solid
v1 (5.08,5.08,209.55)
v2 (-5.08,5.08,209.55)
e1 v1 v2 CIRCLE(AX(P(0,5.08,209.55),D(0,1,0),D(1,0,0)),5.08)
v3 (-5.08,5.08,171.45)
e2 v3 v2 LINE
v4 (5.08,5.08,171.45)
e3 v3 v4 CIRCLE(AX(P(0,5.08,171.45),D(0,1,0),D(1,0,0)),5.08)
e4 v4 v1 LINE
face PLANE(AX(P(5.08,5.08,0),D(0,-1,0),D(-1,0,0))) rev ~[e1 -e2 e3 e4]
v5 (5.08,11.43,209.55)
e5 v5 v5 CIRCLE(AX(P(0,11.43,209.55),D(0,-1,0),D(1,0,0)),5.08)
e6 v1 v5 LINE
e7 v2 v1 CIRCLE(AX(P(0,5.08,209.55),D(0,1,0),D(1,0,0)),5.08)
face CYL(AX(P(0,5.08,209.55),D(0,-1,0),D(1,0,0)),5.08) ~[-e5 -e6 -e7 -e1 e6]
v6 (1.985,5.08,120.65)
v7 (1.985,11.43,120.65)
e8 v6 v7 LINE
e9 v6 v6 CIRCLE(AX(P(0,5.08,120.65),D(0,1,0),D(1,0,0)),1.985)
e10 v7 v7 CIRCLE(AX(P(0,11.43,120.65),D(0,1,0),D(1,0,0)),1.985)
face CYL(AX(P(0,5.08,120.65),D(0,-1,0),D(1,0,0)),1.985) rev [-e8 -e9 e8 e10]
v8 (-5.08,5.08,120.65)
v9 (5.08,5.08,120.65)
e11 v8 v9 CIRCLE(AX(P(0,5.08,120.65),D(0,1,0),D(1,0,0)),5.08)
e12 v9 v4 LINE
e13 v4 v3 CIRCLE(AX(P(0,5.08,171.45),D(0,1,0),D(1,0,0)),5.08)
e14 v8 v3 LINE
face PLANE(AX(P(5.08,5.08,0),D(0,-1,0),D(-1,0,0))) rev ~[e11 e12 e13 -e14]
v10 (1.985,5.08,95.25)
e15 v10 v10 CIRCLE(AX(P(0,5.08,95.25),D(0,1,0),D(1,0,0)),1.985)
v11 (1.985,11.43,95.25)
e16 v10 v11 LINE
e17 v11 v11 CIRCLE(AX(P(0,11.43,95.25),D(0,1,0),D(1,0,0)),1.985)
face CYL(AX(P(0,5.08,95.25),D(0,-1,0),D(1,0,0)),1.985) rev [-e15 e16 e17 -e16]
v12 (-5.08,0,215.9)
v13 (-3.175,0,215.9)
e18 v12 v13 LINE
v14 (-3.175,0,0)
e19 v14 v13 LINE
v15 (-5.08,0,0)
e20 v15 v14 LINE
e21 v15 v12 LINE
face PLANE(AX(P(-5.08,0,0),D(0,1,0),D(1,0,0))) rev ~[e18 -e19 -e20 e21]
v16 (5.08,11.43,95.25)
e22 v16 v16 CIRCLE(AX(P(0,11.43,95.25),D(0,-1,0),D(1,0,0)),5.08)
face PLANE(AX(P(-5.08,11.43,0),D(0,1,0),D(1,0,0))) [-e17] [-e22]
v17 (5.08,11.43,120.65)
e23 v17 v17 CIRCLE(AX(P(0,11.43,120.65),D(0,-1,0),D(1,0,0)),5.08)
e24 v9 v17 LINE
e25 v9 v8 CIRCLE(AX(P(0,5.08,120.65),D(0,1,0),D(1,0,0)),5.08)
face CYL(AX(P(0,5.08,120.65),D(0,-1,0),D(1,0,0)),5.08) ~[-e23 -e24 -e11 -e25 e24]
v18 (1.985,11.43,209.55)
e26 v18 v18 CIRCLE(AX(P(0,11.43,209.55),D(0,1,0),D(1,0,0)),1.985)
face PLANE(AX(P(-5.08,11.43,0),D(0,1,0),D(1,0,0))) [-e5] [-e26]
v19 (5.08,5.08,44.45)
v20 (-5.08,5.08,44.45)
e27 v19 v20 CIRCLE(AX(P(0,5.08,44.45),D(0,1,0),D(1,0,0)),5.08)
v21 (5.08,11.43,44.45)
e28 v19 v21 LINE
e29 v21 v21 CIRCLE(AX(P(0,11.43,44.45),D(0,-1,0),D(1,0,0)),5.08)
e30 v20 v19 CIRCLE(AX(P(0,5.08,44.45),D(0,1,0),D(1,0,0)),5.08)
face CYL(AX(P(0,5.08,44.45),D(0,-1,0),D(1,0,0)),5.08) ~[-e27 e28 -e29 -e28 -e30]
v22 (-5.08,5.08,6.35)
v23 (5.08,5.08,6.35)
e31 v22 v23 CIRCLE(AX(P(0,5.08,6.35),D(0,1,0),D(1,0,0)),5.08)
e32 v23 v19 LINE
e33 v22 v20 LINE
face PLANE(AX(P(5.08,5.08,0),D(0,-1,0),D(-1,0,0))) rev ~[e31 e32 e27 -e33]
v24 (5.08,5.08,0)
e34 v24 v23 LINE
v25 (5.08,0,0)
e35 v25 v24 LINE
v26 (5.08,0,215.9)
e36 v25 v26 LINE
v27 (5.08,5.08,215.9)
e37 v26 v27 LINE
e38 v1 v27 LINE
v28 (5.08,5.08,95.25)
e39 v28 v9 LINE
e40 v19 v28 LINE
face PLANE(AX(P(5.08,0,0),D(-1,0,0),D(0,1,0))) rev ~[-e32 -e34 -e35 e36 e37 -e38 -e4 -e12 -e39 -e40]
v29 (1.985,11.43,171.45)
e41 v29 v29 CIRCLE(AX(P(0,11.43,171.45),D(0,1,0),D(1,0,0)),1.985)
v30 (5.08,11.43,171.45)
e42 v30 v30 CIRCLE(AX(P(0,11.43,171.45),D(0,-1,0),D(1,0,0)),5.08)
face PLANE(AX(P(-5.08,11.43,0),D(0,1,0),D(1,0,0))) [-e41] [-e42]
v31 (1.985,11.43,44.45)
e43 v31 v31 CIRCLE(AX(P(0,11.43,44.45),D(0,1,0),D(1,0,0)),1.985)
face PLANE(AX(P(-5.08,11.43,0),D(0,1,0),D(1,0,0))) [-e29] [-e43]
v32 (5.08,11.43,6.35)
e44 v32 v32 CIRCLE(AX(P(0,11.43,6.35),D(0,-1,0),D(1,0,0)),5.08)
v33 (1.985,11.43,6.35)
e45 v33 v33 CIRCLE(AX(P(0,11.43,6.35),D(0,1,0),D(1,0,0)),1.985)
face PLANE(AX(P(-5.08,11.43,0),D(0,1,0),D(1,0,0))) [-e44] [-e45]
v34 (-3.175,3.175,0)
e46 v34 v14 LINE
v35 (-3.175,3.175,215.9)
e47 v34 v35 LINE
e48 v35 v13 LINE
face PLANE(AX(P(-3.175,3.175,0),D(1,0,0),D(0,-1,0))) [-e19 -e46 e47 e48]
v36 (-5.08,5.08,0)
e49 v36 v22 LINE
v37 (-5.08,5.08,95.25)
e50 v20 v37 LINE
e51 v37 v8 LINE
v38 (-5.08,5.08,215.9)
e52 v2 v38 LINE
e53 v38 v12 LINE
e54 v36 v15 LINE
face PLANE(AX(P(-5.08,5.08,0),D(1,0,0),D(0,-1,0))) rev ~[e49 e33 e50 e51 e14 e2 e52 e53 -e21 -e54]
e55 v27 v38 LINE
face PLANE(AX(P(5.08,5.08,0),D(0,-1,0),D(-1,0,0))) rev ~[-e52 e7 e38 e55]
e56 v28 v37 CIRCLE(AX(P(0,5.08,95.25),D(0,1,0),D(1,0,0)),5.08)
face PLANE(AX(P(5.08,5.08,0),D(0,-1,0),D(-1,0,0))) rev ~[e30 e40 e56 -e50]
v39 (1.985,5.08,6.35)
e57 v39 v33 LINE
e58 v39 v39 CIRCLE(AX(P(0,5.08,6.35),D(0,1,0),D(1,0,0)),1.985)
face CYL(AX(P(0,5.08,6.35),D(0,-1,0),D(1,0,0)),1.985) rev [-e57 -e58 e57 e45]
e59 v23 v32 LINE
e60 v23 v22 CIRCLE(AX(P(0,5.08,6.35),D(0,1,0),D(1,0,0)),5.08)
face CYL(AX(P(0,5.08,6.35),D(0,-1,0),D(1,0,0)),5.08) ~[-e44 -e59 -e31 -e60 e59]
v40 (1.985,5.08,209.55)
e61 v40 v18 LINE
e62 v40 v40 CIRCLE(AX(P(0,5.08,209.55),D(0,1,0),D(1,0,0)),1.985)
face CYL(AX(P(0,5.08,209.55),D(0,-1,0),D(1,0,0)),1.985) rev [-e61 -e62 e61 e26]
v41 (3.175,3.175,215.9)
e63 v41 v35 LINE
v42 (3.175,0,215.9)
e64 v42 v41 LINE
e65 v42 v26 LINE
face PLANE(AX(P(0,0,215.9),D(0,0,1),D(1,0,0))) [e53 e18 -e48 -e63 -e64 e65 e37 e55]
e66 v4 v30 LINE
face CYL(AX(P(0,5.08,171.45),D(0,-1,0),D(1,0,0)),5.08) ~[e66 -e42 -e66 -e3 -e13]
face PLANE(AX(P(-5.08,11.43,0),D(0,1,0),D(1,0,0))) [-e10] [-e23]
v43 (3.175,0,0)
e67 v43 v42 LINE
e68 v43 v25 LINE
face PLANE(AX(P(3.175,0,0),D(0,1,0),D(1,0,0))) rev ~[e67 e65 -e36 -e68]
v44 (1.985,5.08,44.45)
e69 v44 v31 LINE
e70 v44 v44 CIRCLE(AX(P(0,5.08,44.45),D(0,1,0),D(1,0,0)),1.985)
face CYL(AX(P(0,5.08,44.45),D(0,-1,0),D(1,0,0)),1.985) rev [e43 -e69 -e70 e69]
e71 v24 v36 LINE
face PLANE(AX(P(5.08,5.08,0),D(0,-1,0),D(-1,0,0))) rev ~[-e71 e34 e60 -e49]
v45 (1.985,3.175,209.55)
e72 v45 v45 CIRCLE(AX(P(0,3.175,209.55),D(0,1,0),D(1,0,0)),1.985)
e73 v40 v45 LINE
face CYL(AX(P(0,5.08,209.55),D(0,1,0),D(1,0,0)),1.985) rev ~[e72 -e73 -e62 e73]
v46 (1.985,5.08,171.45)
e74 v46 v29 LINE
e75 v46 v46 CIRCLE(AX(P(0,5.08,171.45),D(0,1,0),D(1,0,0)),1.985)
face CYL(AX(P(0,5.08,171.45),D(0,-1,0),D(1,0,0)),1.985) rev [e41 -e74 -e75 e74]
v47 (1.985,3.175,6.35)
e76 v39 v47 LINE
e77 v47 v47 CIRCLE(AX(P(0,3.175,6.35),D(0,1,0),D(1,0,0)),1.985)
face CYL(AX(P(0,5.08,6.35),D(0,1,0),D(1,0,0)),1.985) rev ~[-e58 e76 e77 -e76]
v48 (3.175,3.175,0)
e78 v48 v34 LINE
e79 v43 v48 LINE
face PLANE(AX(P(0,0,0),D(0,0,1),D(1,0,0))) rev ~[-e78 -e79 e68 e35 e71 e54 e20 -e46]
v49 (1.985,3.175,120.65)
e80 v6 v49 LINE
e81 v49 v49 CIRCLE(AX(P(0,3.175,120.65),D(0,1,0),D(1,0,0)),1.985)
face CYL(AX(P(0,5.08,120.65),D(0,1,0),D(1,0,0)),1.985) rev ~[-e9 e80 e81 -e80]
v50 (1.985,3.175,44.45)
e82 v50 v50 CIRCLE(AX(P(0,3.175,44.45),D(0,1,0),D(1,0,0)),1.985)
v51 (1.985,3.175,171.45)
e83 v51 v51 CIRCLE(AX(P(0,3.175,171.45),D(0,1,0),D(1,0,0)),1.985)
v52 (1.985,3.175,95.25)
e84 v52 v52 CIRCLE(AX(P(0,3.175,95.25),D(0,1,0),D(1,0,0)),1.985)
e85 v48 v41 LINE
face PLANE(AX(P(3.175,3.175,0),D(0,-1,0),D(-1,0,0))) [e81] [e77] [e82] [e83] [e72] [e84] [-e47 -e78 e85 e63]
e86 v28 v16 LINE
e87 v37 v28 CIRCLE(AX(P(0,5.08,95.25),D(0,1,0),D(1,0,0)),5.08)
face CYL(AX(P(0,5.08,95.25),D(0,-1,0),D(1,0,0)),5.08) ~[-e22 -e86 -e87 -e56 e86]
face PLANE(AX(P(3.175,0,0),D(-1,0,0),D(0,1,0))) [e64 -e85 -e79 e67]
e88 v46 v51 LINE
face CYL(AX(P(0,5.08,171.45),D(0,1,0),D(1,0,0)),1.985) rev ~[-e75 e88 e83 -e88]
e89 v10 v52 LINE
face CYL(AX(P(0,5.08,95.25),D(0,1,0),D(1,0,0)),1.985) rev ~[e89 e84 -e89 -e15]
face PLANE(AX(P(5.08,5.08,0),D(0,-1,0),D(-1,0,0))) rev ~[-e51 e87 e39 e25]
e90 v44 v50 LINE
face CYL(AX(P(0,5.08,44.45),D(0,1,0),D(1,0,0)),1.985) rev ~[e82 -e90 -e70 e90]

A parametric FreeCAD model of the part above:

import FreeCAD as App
import Part
import Sketcher

V = App.Vector
Q = App.Units.Quantity

doc = App.newDocument("Part")
body = doc.addObject("PartDesign::Body", "Body")

sketch1 = doc.addObject("Sketcher::SketchObject", "Sketch")
body.addObject(sketch1)
sketch1.AttachmentSupport = (doc.XY_Plane, [""])
sketch1.MapMode = "FlatFace"
sketch1.addGeometry(Part.LineSegment(V(3.2, 3.2, 0), V(3.2, 0, 0)), False)
sketch1.addGeometry(Part.LineSegment(V(3.2, 0, 0), V(5.1, 0, 0)), False)
sketch1.addGeometry(Part.LineSegment(V(5.1, 0, 0), V(5.1, 5.1, 0)), False)
sketch1.addGeometry(Part.LineSegment(V(5.1, 5.1, 0), V(-5.1, 5.1, 0)), False)
sketch1.addGeometry(Part.LineSegment(V(-5.1, 5.1, 0), V(-5.1, 0, 0)), False)
sketch1.addGeometry(Part.LineSegment(V(-5.1, 0, 0), V(-3.2, 0, 0)), False)
sketch1.addGeometry(Part.LineSegment(V(-3.2, 0, 0), V(-3.2, 3.2, 0)), False)
sketch1.addGeometry(Part.LineSegment(V(-3.2, 3.2, 0), V(3.2, 3.2, 0)), False)
sketch1.addConstraint(Sketcher.Constraint("Coincident", 0, 2, 1, 1))
sketch1.addConstraint(Sketcher.Constraint("Coincident", 1, 2, 2, 1))
sketch1.addConstraint(Sketcher.Constraint("Coincident", 2, 2, 3, 1))
sketch1.addConstraint(Sketcher.Constraint("Coincident", 3, 2, 4, 1))
sketch1.addConstraint(Sketcher.Constraint("Coincident", 4, 2, 5, 1))
sketch1.addConstraint(Sketcher.Constraint("Coincident", 5, 2, 6, 1))
sketch1.addConstraint(Sketcher.Constraint("Coincident", 6, 2, 7, 1))
sketch1.addConstraint(Sketcher.Constraint("Coincident", 7, 2, 0, 1))
sketch1.addConstraint(Sketcher.Constraint("Vertical", 0))
sketch1.addConstraint(Sketcher.Constraint("Horizontal", 1))
sketch1.addConstraint(Sketcher.Constraint("Vertical", 2))
sketch1.addConstraint(Sketcher.Constraint("Horizontal", 3))
sketch1.addConstraint(Sketcher.Constraint("Vertical", 4))
sketch1.addConstraint(Sketcher.Constraint("Horizontal", 5))
sketch1.addConstraint(Sketcher.Constraint("Vertical", 6))
sketch1.addConstraint(Sketcher.Constraint("Horizontal", 7))
sketch1.addConstraint(Sketcher.Constraint("Symmetric", 1, 2, 4, 2, -1, 1))
sketch1.addConstraint(Sketcher.Constraint("Symmetric", 0, 2, 5, 2, -2))
sketch1.addConstraint(Sketcher.Constraint("DistanceX", 3, 2, 3, 1, Q("0.4 in")))
sketch1.addConstraint(Sketcher.Constraint("DistanceY", 2, 1, 2, 2, Q("0.2 in")))
sketch1.addConstraint(Sketcher.Constraint("DistanceX", 7, 1, 7, 2, Q("0.25 in")))
sketch1.addConstraint(Sketcher.Constraint("DistanceY", 0, 2, 0, 1, Q("0.125 in")))
pad1 = doc.addObject("PartDesign::Pad", "Pad")
body.addObject(pad1)
pad1.Profile = sketch1
pad1.Length = Q("8.5 in")

sketch2 = doc.addObject("Sketcher::SketchObject", "Sketch001")
body.addObject(sketch2)
sketch2.AttachmentSupport = (doc.XZ_Plane, [""])
sketch2.MapMode = "FlatFace"
sketch2.AttachmentOffset = App.Placement(V(0, 0, -0.2 * 25.4), App.Rotation())
sketch2.addGeometry(Part.Circle(V(0, 6.3, 0), V(0, 0, 1), 2), False)
sketch2.addGeometry(Part.Circle(V(0, 209.6, 0), V(0, 0, 1), 2), False)
sketch2.addGeometry(Part.Circle(V(0, 44.5, 0), V(0, 0, 1), 2), False)
sketch2.addGeometry(Part.Circle(V(0, 171.4, 0), V(0, 0, 1), 2), False)
sketch2.addGeometry(Part.Circle(V(0, 95.2, 0), V(0, 0, 1), 2), False)
sketch2.addGeometry(Part.Circle(V(0, 120.7, 0), V(0, 0, 1), 2), False)
sketch2.addConstraint(Sketcher.Constraint("Equal", 0, 1))
sketch2.addConstraint(Sketcher.Constraint("Equal", 1, 2))
sketch2.addConstraint(Sketcher.Constraint("Equal", 2, 3))
sketch2.addConstraint(Sketcher.Constraint("Equal", 3, 4))
sketch2.addConstraint(Sketcher.Constraint("Equal", 4, 5))
sketch2.addConstraint(Sketcher.Constraint("PointOnObject", 0, 3, -2))
sketch2.addConstraint(Sketcher.Constraint("PointOnObject", 1, 3, -2))
sketch2.addConstraint(Sketcher.Constraint("PointOnObject", 2, 3, -2))
sketch2.addConstraint(Sketcher.Constraint("PointOnObject", 3, 3, -2))
sketch2.addConstraint(Sketcher.Constraint("PointOnObject", 4, 3, -2))
sketch2.addConstraint(Sketcher.Constraint("PointOnObject", 5, 3, -2))
sketch2.addConstraint(Sketcher.Constraint("Diameter", 0, Q("0.1563 in")))
sketch2.addConstraint(Sketcher.Constraint("DistanceY", 0, 3, 1, 3, Q("8 in")))
sketch2.addConstraint(Sketcher.Constraint("DistanceY", 2, 3, 3, 3, Q("5 in")))
sketch2.addConstraint(Sketcher.Constraint("DistanceY", 2, 3, 4, 3, Q("2 in")))
sketch2.addConstraint(Sketcher.Constraint("DistanceY", 4, 3, 5, 3, Q("1 in")))
sketch2.addConstraint(Sketcher.Constraint("DistanceY", 0, 3, 2, 3, Q("1.5 in")))
sketch2.addConstraint(Sketcher.Constraint("DistanceY", -1, 1, 0, 3, Q("0.25 in")))
pocket1 = doc.addObject("PartDesign::Pocket", "Pocket")
body.addObject(pocket1)
pocket1.Profile = sketch2
pocket1.Length = Q("8.5 in")
pocket1.Reversed = True

sketch3 = doc.addObject("Sketcher::SketchObject", "Sketch002")
body.addObject(sketch3)
sketch3.AttachmentSupport = (doc.XZ_Plane, [""])
sketch3.MapMode = "FlatFace"
sketch3.AttachmentOffset = App.Placement(V(0, 0, -0.2 * 25.4), App.Rotation())
sketch3.addGeometry(Part.Circle(V(0, 6.3, 0), V(0, 0, 1), 5.1), False)
sketch3.addGeometry(Part.Circle(V(0, 6.3, 0), V(0, 0, 1), 2), False)
sketch3.addGeometry(Part.Circle(V(0, 44.5, 0), V(0, 0, 1), 5.1), False)
sketch3.addGeometry(Part.Circle(V(0, 44.5, 0), V(0, 0, 1), 2), False)
sketch3.addGeometry(Part.Circle(V(0, 95.2, 0), V(0, 0, 1), 5.1), False)
sketch3.addGeometry(Part.Circle(V(0, 95.2, 0), V(0, 0, 1), 2), False)
sketch3.addGeometry(Part.Circle(V(0, 120.7, 0), V(0, 0, 1), 5.1), False)
sketch3.addGeometry(Part.Circle(V(0, 120.7, 0), V(0, 0, 1), 2), False)
sketch3.addGeometry(Part.Circle(V(0, 171.4, 0), V(0, 0, 1), 5.1), False)
sketch3.addGeometry(Part.Circle(V(0, 171.4, 0), V(0, 0, 1), 2), False)
sketch3.addGeometry(Part.Circle(V(0, 209.6, 0), V(0, 0, 1), 5.1), False)
sketch3.addGeometry(Part.Circle(V(0, 209.6, 0), V(0, 0, 1), 2), False)
sketch3.addConstraint(Sketcher.Constraint("Coincident", 1, 3, 0, 3))
sketch3.addConstraint(Sketcher.Constraint("Coincident", 3, 3, 2, 3))
sketch3.addConstraint(Sketcher.Constraint("Coincident", 5, 3, 4, 3))
sketch3.addConstraint(Sketcher.Constraint("Coincident", 7, 3, 6, 3))
sketch3.addConstraint(Sketcher.Constraint("Coincident", 9, 3, 8, 3))
sketch3.addConstraint(Sketcher.Constraint("Coincident", 11, 3, 10, 3))
sketch3.addConstraint(Sketcher.Constraint("Equal", 0, 2))
sketch3.addConstraint(Sketcher.Constraint("Equal", 1, 3))
sketch3.addConstraint(Sketcher.Constraint("Equal", 2, 4))
sketch3.addConstraint(Sketcher.Constraint("Equal", 3, 5))
sketch3.addConstraint(Sketcher.Constraint("Equal", 4, 6))
sketch3.addConstraint(Sketcher.Constraint("Equal", 5, 7))
sketch3.addConstraint(Sketcher.Constraint("Equal", 6, 8))
sketch3.addConstraint(Sketcher.Constraint("Equal", 7, 9))
sketch3.addConstraint(Sketcher.Constraint("Equal", 8, 10))
sketch3.addConstraint(Sketcher.Constraint("Equal", 9, 11))
sketch3.addConstraint(Sketcher.Constraint("PointOnObject", 0, 3, -2))
sketch3.addConstraint(Sketcher.Constraint("PointOnObject", 2, 3, -2))
sketch3.addConstraint(Sketcher.Constraint("PointOnObject", 4, 3, -2))
sketch3.addConstraint(Sketcher.Constraint("PointOnObject", 6, 3, -2))
sketch3.addConstraint(Sketcher.Constraint("PointOnObject", 8, 3, -2))
sketch3.addConstraint(Sketcher.Constraint("PointOnObject", 10, 3, -2))
sketch3.addConstraint(Sketcher.Constraint("Diameter", 0, Q("0.4 in")))
sketch3.addConstraint(Sketcher.Constraint("DistanceY", 2, 3, 4, 3, Q("2 in")))
sketch3.addConstraint(Sketcher.Constraint("DistanceY", 4, 3, 6, 3, Q("1 in")))
sketch3.addConstraint(Sketcher.Constraint("DistanceY", 6, 3, 8, 3, Q("2 in")))
sketch3.addConstraint(Sketcher.Constraint("Diameter", 1, Q("0.1563 in")))
sketch3.addConstraint(Sketcher.Constraint("DistanceY", 0, 3, 2, 3, Q("1.5 in")))
sketch3.addConstraint(Sketcher.Constraint("DistanceY", 8, 3, 10, 3, Q("1.5 in")))
sketch3.addConstraint(Sketcher.Constraint("DistanceY", -1, 1, 0, 3, Q("0.25 in")))
pad2 = doc.addObject("PartDesign::Pad", "Pad001")
body.addObject(pad2)
pad2.Profile = sketch3
pad2.Length = Q("0.25 in")
pad2.Reversed = True

doc.recompute()
